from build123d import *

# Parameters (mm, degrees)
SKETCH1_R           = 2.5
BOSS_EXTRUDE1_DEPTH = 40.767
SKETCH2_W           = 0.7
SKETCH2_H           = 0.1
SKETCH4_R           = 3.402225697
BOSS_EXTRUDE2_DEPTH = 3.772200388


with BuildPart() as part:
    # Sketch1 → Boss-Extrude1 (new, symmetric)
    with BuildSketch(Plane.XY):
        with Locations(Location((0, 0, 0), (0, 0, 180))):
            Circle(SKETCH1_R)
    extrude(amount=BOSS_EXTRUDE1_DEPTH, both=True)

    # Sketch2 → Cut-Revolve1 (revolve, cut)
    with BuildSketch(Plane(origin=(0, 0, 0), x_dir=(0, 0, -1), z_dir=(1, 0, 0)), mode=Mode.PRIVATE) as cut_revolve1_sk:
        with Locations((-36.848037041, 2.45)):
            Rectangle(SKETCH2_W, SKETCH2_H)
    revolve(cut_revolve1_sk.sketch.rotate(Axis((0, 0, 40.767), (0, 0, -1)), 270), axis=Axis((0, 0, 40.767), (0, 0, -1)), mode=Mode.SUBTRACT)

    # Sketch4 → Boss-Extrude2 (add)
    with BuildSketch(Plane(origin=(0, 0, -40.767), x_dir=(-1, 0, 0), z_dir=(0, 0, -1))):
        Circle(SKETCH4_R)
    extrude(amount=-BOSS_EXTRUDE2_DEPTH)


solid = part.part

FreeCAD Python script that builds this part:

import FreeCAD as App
import Part
import Sketcher

V = App.Vector
Q = App.Units.Quantity

doc = App.newDocument("Part")
body = doc.addObject("PartDesign::Body", "Body")

sketch1 = body.newObject("Sketcher::SketchObject", "Sketch")
sketch1.AttachmentSupport = (doc.getObject("XY_Plane"), [""])
sketch1.MapMode = "FlatFace"
sketch1.addGeometry(Part.Circle(V(0, 0, 0), V(0, 0, 1), 2.5), False)
sketch1.addConstraint(Sketcher.Constraint("Coincident", 0, 3, -1, 1))
sketch1.addConstraint(Sketcher.Constraint("Diameter", 0, Q("5 mm")))
pad1 = body.newObject("PartDesign::Pad", "Pad")
pad1.Profile = sketch1
pad1.Length = 81.534
pad1.Midplane = True

sketch2 = body.newObject("Sketcher::SketchObject", "Sketch001")
sketch2.AttachmentSupport = (doc.getObject("YZ_Plane"), [""])
sketch2.MapMode = "FlatFace"
sketch2.addGeometry(Part.LineSegment(V(2.5, 37.198037, 0), V(2.4, 37.198037, 0)), False)
sketch2.addGeometry(Part.LineSegment(V(2.4, 37.198037, 0), V(2.4, 36.498037, 0)), False)
sketch2.addGeometry(Part.LineSegment(V(2.4, 36.498037, 0), V(2.5, 36.498037, 0)), False)
sketch2.addGeometry(Part.LineSegment(V(2.5, 36.498037, 0), V(2.5, 37.198037, 0)), False)
sketch2.addConstraint(Sketcher.Constraint("Coincident", 0, 2, 1, 1))
sketch2.addConstraint(Sketcher.Constraint("Coincident", 1, 2, 2, 1))
sketch2.addConstraint(Sketcher.Constraint("Coincident", 2, 2, 3, 1))
sketch2.addConstraint(Sketcher.Constraint("Coincident", 3, 2, 0, 1))
sketch2.addConstraint(Sketcher.Constraint("Horizontal", 0))
sketch2.addConstraint(Sketcher.Constraint("Vertical", 1))
sketch2.addConstraint(Sketcher.Constraint("Horizontal", 2))
sketch2.addConstraint(Sketcher.Constraint("Vertical", 3))
sketch2.addConstraint(Sketcher.Constraint("DistanceX", 0, 2, 0, 1, Q("0.1 mm")))
sketch2.addConstraint(Sketcher.Constraint("DistanceY", 1, 2, 1, 1, Q("0.7 mm")))
sketch2.addConstraint(Sketcher.Constraint("DistanceX", -1, 1, 0, 2, Q("2.4 mm")))
sketch2.addConstraint(Sketcher.Constraint("DistanceY", -1, 1, 0, 2, Q("37.198037 mm")))
groove = body.newObject("PartDesign::Groove", "Groove")
groove.Profile = sketch2
groove.ReferenceAxis = (sketch2, ["V_Axis"])
groove.Angle = 360

sketch3 = body.newObject("Sketcher::SketchObject", "Sketch002")
sketch3.AttachmentSupport = (doc.getObject("XY_Plane"), [""])
sketch3.MapMode = "FlatFace"
sketch3.AttachmentOffset = App.Placement(V(0, 0, -40.767), App.Rotation())
sketch3.addGeometry(Part.Circle(V(0, 0, 0), V(0, 0, 1), 3.402226), False)
sketch3.addConstraint(Sketcher.Constraint("Coincident", 0, 3, -1, 1))
sketch3.addConstraint(Sketcher.Constraint("Diameter", 0, Q("6.804451 mm")))
pad2 = body.newObject("PartDesign::Pad", "Pad001")
pad2.Profile = sketch3
pad2.Length = 3.7722

doc.recompute()
